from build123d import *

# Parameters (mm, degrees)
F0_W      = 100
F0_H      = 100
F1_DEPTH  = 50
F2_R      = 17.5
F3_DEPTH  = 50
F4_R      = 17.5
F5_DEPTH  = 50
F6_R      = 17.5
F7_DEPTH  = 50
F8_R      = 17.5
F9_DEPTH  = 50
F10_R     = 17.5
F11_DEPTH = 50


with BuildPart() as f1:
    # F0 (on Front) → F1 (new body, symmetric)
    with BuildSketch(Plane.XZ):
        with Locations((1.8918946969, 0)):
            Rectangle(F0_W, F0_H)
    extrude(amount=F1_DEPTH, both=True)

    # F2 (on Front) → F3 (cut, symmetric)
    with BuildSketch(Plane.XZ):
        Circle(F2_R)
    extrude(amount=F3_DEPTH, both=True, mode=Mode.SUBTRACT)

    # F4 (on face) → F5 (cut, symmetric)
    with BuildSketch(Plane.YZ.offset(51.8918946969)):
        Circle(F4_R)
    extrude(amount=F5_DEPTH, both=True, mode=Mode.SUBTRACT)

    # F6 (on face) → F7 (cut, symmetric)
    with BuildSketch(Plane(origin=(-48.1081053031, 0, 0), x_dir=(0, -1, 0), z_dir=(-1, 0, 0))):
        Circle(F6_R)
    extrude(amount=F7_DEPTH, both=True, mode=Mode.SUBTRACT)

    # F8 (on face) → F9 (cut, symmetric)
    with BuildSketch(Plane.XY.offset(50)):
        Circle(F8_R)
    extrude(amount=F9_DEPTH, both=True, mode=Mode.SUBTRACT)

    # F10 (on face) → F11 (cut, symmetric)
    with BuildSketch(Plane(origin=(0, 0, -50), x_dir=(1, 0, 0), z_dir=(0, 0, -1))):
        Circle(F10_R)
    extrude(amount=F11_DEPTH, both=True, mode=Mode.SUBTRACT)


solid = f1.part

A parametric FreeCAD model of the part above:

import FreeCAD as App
import Part
import Sketcher

V = App.Vector


def add_polygon(sketch, points):
    """Adds a closed chain of lines whose ends are joined by coincident constraints."""
    first, n = sketch.GeometryCount, len(points)
    for a, b in zip(points, points[1:] + points[:1]):
        sketch.addGeometry(Part.LineSegment(App.Vector(*a, 0), App.Vector(*b, 0)), False)
    for i in range(n):
        sketch.addConstraint(Sketcher.Constraint("Coincident", first + i, 2, first + (i + 1) % n, 1))

doc = App.newDocument("Part")
body = doc.addObject("PartDesign::Body", "Body")

sketch1 = body.newObject("Sketcher::SketchObject", "Sketch")
sketch1.AttachmentSupport = (doc.getObject("XZ_Plane"), [""])
sketch1.MapMode = "FlatFace"
add_polygon(sketch1, [(-48, 50), (-48, -50), (52, -50), (52, 50)])
sketch1.addConstraint(Sketcher.Constraint("Vertical", 0))
sketch1.addConstraint(Sketcher.Constraint("Horizontal", 1))
sketch1.addConstraint(Sketcher.Constraint("Vertical", 2))
sketch1.addConstraint(Sketcher.Constraint("Horizontal", 3))
sketch1.addConstraint(Sketcher.Constraint("Equal", 3, 0))
sketch1.addConstraint(Sketcher.Constraint("DistanceX", 1, 1, 1, 2, 100.0))
sketch1.addConstraint(Sketcher.Constraint("DistanceY", 0, 2, -1, 1, 50.0))
sketch1.addConstraint(Sketcher.Constraint("DistanceX", 0, 2, -1, 1, 48.108105))
pad1 = body.newObject("PartDesign::Pad", "Pad")
pad1.Profile = sketch1
pad1.Length = 100
pad1.Midplane = True

sketch2 = body.newObject("Sketcher::SketchObject", "Sketch001")
sketch2.AttachmentSupport = (doc.getObject("XZ_Plane"), [""])
sketch2.MapMode = "FlatFace"
sketch2.addGeometry(Part.Circle(V(0, 0, 0), V(0, 0, 1), 18), False)
sketch2.addConstraint(Sketcher.Constraint("Coincident", 0, 3, -1, 1))
sketch2.addConstraint(Sketcher.Constraint("Diameter", 0, 35.0))
pocket1 = body.newObject("PartDesign::Pocket", "Pocket")
pocket1.Profile = sketch2
pocket1.Length = 100
pocket1.Midplane = True

sketch3 = body.newObject("Sketcher::SketchObject", "Sketch002")
sketch3.AttachmentSupport = (doc.getObject("YZ_Plane"), [""])
sketch3.MapMode = "FlatFace"
sketch3.AttachmentOffset = App.Placement(V(0, 0, 51.891895), App.Rotation())
sketch3.addGeometry(Part.Circle(V(0, 0, 0), V(0, 0, 1), 18), False)
sketch3.addConstraint(Sketcher.Constraint("Coincident", 0, 3, -1, 1))
sketch3.addConstraint(Sketcher.Constraint("Diameter", 0, 35.0))
pocket2 = body.newObject("PartDesign::Pocket", "Pocket001")
pocket2.Profile = sketch3
pocket2.Length = 100
pocket2.Midplane = True

sketch4 = body.newObject("Sketcher::SketchObject", "Sketch003")
sketch4.AttachmentSupport = (doc.getObject("YZ_Plane"), [""])
sketch4.MapMode = "FlatFace"
sketch4.AttachmentOffset = App.Placement(V(0, 0, -48.108105), App.Rotation())
sketch4.addGeometry(Part.Circle(V(0, 0, 0), V(0, 0, 1), 18), False)
sketch4.addConstraint(Sketcher.Constraint("Coincident", 0, 3, -1, 1))
sketch4.addConstraint(Sketcher.Constraint("Diameter", 0, 35.0))
pocket3 = body.newObject("PartDesign::Pocket", "Pocket002")
pocket3.Profile = sketch4
pocket3.Length = 100
pocket3.Midplane = True

sketch5 = body.newObject("Sketcher::SketchObject", "Sketch004")
sketch5.AttachmentSupport = (doc.getObject("XY_Plane"), [""])
sketch5.MapMode = "FlatFace"
sketch5.AttachmentOffset = App.Placement(V(0, 0, 50), App.Rotation())
sketch5.addGeometry(Part.Circle(V(0, 0, 0), V(0, 0, 1), 18), False)
sketch5.addConstraint(Sketcher.Constraint("Coincident", 0, 3, -1, 1))
sketch5.addConstraint(Sketcher.Constraint("Diameter", 0, 35.0))
pocket4 = body.newObject("PartDesign::Pocket", "Pocket003")
pocket4.Profile = sketch5
pocket4.Length = 100
pocket4.Midplane = True

sketch6 = body.newObject("Sketcher::SketchObject", "Sketch005")
sketch6.AttachmentSupport = (doc.getObject("XY_Plane"), [""])
sketch6.MapMode = "FlatFace"
sketch6.AttachmentOffset = App.Placement(V(0, 0, -50), App.Rotation())
sketch6.addGeometry(Part.Circle(V(0, 0, 0), V(0, 0, 1), 18), False)
sketch6.addConstraint(Sketcher.Constraint("Coincident", 0, 3, -1, 1))
sketch6.addConstraint(Sketcher.Constraint("Diameter", 0, 35.0))
pocket5 = body.newObject("PartDesign::Pocket", "Pocket004")
pocket5.Profile = sketch6
pocket5.Length = 100
pocket5.Midplane = True

doc.recompute()
